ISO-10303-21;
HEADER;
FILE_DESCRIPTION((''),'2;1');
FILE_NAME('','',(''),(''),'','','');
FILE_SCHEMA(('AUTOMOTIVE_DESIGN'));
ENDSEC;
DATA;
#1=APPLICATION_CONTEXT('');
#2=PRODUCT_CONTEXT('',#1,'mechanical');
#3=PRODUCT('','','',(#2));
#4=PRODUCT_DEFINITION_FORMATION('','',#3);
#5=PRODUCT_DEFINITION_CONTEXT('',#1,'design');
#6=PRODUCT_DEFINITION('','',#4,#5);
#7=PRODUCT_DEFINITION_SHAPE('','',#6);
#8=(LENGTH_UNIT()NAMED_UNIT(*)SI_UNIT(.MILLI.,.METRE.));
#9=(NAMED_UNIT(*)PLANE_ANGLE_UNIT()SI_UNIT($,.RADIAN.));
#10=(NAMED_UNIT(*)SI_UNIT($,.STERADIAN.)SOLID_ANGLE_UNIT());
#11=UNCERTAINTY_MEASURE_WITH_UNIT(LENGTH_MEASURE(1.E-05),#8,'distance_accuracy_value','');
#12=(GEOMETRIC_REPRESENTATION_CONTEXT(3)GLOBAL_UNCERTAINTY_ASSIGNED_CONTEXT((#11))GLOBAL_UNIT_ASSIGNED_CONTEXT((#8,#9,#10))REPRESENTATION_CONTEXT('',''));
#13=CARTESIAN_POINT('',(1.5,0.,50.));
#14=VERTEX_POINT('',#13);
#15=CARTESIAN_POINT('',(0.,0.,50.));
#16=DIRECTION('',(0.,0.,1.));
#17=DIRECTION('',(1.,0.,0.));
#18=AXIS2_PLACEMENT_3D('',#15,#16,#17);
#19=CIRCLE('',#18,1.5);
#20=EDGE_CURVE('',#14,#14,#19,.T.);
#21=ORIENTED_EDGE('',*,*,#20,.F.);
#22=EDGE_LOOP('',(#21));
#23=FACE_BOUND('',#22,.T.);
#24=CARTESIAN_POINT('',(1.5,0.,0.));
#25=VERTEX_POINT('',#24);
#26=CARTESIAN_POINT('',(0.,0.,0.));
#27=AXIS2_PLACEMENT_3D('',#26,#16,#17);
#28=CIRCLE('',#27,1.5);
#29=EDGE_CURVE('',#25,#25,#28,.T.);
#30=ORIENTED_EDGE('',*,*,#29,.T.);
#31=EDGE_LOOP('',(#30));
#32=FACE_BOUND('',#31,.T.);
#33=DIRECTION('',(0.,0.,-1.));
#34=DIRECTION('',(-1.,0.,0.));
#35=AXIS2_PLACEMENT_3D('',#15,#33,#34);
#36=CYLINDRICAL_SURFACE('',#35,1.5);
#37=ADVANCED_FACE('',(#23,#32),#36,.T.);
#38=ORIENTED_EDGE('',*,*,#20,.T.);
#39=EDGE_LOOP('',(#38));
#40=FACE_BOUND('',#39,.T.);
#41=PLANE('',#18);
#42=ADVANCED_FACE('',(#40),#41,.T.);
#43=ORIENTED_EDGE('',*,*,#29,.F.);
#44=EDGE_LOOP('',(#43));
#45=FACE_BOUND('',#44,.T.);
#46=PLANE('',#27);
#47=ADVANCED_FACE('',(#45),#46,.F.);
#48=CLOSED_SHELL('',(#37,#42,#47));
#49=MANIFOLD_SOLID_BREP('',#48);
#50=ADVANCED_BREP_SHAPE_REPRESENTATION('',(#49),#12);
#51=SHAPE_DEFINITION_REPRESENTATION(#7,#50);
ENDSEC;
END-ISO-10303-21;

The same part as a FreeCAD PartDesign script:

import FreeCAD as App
import Part
import Sketcher

V = App.Vector

doc = App.newDocument("Part")
params = doc.addObject("Spreadsheet::Sheet", "Params")
for row, (alias, value) in enumerate([
    ("sketch1_diameter", "3 mm"),
    ("pad1_length", "50 mm"),
], start=1):
    params.set(f"A{row}", alias)
    params.set(f"B{row}", "=" + value)
    params.setAlias(f"B{row}", alias)

body = doc.addObject("PartDesign::Body", "Body")

# Sketch on XY plane
sketch1 = doc.addObject("Sketcher::SketchObject", "Sketch")
body.addObject(sketch1)
sketch1.AttachmentSupport = (doc.XY_Plane, [""])
sketch1.MapMode = "FlatFace"
sketch1.addGeometry(Part.Circle(V(0, 0, 0), V(0, 0, 1), 1.5), False)
sketch1.addConstraint([
    Sketcher.Constraint("Coincident", 0, 3, -1, 1),
    Sketcher.Constraint("Diameter", 0, 3.0),
])
sketch1.setExpression("Constraints[1]", "Params.sketch1_diameter")
pad1 = doc.addObject("PartDesign::Pad", "Pad")
body.addObject(pad1)
pad1.Profile = sketch1
pad1.setExpression("Length", "Params.pad1_length")

doc.recompute()
